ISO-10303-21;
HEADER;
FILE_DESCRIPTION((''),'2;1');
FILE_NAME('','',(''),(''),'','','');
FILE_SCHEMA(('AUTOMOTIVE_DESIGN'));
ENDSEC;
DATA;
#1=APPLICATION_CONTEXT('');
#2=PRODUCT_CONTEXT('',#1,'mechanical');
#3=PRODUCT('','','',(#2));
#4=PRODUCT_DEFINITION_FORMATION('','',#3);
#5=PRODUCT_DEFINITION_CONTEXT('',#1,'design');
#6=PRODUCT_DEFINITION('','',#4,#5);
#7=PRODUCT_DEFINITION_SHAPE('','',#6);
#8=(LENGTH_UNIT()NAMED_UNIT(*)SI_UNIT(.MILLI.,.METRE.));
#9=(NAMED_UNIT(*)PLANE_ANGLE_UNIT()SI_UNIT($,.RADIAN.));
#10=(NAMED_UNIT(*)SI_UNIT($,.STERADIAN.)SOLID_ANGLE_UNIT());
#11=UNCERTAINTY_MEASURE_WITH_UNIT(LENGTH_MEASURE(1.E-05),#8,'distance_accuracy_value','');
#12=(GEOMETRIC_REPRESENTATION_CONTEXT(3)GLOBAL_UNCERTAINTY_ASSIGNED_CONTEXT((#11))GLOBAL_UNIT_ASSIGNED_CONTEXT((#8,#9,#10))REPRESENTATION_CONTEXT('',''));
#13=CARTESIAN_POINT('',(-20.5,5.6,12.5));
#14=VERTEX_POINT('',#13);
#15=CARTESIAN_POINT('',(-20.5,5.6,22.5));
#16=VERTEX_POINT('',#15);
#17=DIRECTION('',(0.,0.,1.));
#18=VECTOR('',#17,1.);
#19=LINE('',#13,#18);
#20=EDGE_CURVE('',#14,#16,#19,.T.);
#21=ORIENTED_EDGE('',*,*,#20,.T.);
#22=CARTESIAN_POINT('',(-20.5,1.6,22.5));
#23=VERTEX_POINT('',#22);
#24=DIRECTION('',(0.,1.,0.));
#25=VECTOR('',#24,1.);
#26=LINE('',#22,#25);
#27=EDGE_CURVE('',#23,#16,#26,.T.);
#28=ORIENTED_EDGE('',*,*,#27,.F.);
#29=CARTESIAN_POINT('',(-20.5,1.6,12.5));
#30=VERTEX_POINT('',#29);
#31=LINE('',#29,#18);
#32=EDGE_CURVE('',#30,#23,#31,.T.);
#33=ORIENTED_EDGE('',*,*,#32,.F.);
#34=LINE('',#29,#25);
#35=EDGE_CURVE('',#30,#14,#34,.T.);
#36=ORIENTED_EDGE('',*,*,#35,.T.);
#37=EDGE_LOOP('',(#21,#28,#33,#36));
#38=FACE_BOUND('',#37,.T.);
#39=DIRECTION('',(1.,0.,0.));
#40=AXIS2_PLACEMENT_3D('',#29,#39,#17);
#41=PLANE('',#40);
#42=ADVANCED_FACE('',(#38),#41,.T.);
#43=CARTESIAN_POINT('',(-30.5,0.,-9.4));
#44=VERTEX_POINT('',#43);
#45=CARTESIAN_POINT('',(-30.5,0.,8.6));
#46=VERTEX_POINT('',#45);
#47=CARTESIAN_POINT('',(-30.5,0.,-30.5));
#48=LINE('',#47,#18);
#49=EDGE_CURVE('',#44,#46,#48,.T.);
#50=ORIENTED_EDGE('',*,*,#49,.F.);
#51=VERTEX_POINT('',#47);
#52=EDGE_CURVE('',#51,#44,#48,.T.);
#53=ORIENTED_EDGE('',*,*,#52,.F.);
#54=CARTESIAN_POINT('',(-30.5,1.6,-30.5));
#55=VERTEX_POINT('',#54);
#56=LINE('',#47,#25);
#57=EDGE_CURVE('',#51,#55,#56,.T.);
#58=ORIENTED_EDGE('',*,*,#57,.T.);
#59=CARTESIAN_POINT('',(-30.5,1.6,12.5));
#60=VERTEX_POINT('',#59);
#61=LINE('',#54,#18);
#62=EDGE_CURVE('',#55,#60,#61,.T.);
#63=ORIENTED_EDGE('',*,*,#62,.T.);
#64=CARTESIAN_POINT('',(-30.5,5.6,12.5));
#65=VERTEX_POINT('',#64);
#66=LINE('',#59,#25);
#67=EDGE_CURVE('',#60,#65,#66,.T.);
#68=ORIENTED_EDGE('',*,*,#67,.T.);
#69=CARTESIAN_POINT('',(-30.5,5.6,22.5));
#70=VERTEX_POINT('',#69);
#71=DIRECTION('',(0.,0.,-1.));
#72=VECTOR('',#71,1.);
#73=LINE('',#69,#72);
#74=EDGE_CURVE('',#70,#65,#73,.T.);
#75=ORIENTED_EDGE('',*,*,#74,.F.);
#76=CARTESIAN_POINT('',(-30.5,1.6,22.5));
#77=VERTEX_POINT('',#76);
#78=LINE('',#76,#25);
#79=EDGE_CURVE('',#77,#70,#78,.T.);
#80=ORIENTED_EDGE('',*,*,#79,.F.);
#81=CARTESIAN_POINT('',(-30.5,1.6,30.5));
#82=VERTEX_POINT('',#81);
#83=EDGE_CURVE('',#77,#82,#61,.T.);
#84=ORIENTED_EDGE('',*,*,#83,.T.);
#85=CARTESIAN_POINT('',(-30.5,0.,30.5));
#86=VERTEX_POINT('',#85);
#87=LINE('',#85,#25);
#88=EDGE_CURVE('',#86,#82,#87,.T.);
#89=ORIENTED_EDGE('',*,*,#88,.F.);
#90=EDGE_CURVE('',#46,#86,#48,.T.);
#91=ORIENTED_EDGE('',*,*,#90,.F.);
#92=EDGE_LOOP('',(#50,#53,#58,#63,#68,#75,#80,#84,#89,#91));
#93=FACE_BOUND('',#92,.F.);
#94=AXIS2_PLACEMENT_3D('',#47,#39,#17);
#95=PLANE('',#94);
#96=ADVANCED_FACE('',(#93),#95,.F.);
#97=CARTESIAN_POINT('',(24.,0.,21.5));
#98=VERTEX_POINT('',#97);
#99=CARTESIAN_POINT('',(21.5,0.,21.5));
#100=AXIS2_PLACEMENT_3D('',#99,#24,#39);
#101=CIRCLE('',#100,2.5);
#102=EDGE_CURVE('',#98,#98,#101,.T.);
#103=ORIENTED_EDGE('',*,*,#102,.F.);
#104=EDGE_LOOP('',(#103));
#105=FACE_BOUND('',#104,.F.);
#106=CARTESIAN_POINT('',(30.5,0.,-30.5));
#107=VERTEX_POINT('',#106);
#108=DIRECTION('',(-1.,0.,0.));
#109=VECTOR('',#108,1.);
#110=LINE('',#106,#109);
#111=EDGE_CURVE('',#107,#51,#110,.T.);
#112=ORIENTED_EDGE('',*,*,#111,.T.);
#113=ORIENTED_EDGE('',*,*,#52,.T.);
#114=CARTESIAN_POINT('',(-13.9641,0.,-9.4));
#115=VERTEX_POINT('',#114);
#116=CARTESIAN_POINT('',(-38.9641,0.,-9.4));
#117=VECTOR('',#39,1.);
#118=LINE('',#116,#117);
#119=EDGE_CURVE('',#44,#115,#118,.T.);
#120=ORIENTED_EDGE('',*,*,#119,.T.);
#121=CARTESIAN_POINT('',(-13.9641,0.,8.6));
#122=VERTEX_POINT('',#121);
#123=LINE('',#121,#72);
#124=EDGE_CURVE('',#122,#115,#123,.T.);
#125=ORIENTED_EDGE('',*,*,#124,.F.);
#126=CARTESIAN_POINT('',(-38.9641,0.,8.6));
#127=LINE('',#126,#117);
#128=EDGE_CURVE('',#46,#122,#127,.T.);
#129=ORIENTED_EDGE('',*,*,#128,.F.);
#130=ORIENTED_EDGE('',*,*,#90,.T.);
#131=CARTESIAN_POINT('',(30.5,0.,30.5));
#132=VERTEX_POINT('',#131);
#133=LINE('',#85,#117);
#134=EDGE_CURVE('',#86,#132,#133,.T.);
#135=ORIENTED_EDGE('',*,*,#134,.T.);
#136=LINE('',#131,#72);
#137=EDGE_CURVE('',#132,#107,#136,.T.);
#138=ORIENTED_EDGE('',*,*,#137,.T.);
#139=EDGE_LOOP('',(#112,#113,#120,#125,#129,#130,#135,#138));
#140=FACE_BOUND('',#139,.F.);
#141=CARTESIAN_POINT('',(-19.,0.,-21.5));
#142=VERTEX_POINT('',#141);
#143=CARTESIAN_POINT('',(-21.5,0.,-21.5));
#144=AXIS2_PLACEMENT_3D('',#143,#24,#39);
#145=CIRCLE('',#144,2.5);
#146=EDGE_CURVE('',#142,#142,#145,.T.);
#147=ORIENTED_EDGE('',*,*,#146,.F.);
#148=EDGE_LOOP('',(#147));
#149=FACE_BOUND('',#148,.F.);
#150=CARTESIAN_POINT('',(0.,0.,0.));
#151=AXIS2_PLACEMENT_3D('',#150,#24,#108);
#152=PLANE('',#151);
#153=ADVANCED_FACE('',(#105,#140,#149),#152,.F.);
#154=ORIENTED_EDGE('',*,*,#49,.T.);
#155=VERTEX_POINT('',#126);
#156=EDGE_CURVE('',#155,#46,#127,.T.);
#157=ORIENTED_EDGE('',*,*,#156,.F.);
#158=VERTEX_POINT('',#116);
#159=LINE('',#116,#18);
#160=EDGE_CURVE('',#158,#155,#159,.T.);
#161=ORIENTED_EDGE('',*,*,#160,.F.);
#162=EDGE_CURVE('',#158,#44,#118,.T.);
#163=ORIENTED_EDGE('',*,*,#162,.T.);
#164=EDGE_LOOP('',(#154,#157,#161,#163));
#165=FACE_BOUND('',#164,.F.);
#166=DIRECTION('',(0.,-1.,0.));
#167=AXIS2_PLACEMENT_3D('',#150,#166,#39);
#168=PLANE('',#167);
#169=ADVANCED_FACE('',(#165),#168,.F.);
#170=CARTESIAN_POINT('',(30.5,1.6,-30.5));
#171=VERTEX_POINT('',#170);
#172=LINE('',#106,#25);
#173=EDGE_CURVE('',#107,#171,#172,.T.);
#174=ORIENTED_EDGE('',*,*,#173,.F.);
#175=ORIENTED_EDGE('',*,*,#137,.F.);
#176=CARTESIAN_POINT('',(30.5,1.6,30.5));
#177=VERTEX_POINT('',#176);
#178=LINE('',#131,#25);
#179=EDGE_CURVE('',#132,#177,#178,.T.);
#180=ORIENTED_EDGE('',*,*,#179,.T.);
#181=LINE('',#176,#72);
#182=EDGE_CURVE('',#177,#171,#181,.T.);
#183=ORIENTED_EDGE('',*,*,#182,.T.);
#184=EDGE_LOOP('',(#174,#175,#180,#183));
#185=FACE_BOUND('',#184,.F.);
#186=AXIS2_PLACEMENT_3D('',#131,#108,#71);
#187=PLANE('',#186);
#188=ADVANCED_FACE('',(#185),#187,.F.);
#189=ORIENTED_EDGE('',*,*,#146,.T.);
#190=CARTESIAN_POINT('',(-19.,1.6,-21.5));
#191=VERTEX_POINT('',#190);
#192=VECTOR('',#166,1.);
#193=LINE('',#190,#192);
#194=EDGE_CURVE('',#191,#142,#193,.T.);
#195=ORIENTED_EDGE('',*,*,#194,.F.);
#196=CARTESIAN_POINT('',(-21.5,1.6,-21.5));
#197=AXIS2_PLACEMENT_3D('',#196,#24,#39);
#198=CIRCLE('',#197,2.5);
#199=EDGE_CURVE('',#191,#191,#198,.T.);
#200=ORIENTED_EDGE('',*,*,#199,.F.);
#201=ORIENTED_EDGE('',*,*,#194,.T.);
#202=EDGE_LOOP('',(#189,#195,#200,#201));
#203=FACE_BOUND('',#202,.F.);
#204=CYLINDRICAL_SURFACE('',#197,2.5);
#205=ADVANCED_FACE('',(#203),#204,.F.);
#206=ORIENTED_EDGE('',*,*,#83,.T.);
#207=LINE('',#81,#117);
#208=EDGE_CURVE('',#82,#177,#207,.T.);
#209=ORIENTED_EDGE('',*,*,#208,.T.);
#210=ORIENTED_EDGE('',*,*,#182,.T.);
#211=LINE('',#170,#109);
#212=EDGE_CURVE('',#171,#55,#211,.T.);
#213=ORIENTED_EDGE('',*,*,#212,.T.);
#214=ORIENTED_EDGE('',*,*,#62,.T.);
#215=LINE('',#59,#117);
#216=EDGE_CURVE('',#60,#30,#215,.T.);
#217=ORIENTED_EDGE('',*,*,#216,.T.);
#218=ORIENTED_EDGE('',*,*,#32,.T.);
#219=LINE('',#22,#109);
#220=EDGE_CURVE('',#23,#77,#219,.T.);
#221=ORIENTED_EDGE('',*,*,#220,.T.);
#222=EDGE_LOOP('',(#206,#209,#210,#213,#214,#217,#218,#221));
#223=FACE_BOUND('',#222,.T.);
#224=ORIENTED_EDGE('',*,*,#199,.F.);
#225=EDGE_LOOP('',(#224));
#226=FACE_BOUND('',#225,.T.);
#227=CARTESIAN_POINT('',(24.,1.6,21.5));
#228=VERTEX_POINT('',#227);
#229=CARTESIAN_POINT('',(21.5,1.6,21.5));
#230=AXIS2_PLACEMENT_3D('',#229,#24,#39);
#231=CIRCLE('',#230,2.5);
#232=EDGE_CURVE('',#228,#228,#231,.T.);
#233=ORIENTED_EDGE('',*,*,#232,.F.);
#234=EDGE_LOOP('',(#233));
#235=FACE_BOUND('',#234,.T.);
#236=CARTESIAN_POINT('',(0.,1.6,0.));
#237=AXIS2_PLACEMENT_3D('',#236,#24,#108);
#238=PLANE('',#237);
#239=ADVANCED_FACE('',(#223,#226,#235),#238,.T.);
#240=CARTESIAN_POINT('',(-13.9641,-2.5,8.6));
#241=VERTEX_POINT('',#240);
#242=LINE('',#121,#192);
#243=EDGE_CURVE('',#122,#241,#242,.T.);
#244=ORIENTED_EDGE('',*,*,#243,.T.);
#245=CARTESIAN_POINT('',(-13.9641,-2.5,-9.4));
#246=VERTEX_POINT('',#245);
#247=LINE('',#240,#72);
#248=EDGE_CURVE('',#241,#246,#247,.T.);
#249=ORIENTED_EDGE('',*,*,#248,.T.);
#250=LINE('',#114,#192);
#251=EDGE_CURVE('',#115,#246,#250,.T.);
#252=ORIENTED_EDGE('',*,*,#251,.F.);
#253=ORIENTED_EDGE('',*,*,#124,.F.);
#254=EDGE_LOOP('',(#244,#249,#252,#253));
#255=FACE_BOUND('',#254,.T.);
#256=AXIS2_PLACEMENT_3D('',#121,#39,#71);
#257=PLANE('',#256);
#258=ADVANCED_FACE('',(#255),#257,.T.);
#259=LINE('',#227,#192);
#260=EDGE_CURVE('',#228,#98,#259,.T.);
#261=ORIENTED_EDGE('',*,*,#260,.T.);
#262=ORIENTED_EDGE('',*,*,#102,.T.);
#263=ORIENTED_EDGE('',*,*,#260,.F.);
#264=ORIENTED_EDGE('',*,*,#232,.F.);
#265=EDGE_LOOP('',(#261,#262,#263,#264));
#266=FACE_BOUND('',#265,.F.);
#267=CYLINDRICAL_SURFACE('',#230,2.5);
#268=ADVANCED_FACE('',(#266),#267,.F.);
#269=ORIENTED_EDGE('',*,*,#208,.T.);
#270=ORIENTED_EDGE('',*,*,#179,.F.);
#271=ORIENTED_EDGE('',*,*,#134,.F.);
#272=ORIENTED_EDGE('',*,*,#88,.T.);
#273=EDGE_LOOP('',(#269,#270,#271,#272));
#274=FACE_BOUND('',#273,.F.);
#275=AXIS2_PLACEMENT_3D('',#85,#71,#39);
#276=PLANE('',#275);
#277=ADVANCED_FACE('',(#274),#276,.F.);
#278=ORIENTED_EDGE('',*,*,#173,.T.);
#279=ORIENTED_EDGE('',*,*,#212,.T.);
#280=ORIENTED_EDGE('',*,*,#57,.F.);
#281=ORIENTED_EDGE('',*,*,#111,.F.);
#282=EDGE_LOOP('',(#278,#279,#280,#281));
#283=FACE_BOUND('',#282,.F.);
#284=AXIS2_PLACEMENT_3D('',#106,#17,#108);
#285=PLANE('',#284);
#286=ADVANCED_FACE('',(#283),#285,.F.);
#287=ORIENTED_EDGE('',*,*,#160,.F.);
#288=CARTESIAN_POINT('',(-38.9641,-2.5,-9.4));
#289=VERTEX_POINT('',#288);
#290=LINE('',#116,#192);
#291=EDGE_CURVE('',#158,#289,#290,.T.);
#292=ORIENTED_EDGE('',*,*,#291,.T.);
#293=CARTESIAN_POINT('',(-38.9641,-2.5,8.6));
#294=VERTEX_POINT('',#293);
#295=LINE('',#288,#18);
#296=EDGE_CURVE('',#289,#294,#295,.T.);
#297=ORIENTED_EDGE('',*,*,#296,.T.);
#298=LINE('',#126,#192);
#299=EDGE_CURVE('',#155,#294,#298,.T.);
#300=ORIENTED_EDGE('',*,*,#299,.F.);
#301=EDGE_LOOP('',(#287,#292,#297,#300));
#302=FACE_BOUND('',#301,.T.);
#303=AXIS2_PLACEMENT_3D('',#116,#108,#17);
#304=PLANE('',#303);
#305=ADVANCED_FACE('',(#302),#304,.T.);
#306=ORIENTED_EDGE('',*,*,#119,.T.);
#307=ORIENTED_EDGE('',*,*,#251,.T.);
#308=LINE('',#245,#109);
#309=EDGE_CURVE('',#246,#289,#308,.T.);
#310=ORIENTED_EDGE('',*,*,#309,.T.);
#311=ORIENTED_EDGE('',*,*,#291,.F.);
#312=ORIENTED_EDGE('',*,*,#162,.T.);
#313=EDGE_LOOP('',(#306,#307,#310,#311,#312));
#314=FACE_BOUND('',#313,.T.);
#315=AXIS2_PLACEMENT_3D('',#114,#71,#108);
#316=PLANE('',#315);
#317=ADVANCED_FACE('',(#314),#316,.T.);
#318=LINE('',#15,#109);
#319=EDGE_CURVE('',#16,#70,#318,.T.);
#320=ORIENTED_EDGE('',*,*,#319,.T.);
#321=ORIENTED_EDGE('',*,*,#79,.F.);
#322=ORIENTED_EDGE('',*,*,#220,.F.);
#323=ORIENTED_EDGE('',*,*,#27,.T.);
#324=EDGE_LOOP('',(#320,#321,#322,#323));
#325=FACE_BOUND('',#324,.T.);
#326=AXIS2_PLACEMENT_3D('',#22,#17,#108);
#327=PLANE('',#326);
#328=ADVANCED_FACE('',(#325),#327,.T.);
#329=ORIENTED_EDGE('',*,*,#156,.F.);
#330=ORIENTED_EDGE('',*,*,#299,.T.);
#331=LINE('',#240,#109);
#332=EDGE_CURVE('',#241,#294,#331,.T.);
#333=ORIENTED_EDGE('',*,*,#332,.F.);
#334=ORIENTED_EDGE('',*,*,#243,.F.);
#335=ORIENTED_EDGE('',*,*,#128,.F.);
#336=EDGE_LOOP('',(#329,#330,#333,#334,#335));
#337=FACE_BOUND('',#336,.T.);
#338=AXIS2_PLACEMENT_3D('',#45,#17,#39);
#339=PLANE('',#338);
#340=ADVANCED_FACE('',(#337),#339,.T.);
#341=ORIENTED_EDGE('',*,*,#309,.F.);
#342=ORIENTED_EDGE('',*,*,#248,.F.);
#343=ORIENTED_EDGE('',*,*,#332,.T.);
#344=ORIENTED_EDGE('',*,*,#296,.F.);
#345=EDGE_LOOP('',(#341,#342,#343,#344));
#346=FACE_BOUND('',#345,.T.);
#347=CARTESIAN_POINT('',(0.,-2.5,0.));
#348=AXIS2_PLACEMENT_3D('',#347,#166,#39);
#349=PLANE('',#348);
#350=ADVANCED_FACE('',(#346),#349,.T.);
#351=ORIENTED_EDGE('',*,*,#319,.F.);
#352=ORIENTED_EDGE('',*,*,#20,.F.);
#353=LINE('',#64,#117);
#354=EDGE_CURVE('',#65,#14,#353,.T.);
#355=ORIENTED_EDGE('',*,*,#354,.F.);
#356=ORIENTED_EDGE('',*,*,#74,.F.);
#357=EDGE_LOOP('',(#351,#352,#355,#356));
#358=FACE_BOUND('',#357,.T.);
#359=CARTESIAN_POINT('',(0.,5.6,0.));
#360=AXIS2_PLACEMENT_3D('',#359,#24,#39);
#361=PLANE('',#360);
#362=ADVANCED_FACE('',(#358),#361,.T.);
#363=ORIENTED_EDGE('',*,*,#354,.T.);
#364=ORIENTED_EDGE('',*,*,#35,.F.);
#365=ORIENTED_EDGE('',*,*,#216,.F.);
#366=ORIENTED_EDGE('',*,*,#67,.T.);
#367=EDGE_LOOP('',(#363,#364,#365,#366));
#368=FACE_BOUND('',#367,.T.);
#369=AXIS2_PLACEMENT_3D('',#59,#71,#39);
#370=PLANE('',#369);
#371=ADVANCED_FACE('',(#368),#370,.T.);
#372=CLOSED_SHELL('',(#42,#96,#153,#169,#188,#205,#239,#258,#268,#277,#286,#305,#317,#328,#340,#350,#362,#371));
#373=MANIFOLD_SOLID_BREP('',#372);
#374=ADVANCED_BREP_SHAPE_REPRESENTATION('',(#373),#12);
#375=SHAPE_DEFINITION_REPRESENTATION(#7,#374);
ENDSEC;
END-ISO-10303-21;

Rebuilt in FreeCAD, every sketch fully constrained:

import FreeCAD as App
import Part
import Sketcher

V = App.Vector


def add_polygon(sketch, points):
    """Adds a closed chain of lines whose ends are joined by coincident constraints."""
    first, n = sketch.GeometryCount, len(points)
    for a, b in zip(points, points[1:] + points[:1]):
        sketch.addGeometry(Part.LineSegment(App.Vector(*a, 0), App.Vector(*b, 0)), False)
    for i in range(n):
        sketch.addConstraint(Sketcher.Constraint("Coincident", first + i, 2, first + (i + 1) % n, 1))

doc = App.newDocument("Part")
body = doc.addObject("PartDesign::Body", "Body")

sketch1 = body.newObject("Sketcher::SketchObject", "Sketch")
sketch1.AttachmentSupport = (doc.getObject("XZ_Plane"), [""])
sketch1.MapMode = "FlatFace"
add_polygon(sketch1, [(-30, -30), (-30, 30), (30, 30), (30, -30)])
sketch1.addConstraint([
    Sketcher.Constraint("Vertical", 0),
    Sketcher.Constraint("Horizontal", 1),
    Sketcher.Constraint("Vertical", 2),
    Sketcher.Constraint("Horizontal", 3),
    Sketcher.Constraint("Symmetric", 0, 2, 2, 2, -1, 1),
    Sketcher.Constraint("Equal", 3, 0),
    Sketcher.Constraint("DistanceX", 1, 1, 1, 2, 61.0),
])
pad1 = body.newObject("PartDesign::Pad", "Pad")
pad1.Profile = sketch1
pad1.Length = 1.6
pad1.Reversed = True

sketch2 = body.newObject("Sketcher::SketchObject", "Sketch001")
sketch2.AttachmentSupport = (doc.getObject("XZ_Plane"), [""])
sketch2.MapMode = "FlatFace"
sketch2.AttachmentOffset = App.Placement(V(0, 0, -1.6), App.Rotation())
sketch2.addGeometry([
    Part.Circle(V(21.5, 21.5, 0), V(0, 0, 1), 2.5),
    Part.Circle(V(-21.5, -21.5, 0), V(0, 0, 1), 2.5),
], False)
sketch2.addConstraint([
    Sketcher.Constraint("Equal", 0, 1),
    Sketcher.Constraint("Symmetric", 0, 3, 1, 3, -1, 1),
    Sketcher.Constraint("Diameter", 0, 5.0),
    Sketcher.Constraint("DistanceX", 1, 3, 0, 3, 43.0),
    Sketcher.Constraint("DistanceY", 1, 3, 0, 3, 43.0),
])
pocket1 = body.newObject("PartDesign::Pocket", "Pocket")
pocket1.Profile = sketch2
pocket1.Length = 1.6
pocket1.Reversed = True

sketch3 = body.newObject("Sketcher::SketchObject", "Sketch002")
sketch3.AttachmentSupport = (doc.getObject("XZ_Plane"), [""])
sketch3.MapMode = "FlatFace"
add_polygon(sketch3, [(-14, -9), (-14, 9), (-39, 9), (-39, -9)])
sketch3.addConstraint([
    Sketcher.Constraint("Vertical", 0),
    Sketcher.Constraint("Horizontal", 1),
    Sketcher.Constraint("Vertical", 2),
    Sketcher.Constraint("Horizontal", 3),
    Sketcher.Constraint("DistanceX", 1, 2, 1, 1, 25.0),
    Sketcher.Constraint("DistanceY", 0, 1, 0, 2, 18.0),
    Sketcher.Constraint("DistanceY", -1, 1, 0, 2, 8.6),
    Sketcher.Constraint("DistanceX", 0, 2, -1, 1, 13.964),
])
pad2 = body.newObject("PartDesign::Pad", "Pad001")
pad2.Profile = sketch3
pad2.Length = 2.5

sketch4 = body.newObject("Sketcher::SketchObject", "Sketch003")
sketch4.AttachmentSupport = (doc.getObject("XZ_Plane"), [""])
sketch4.MapMode = "FlatFace"
sketch4.AttachmentOffset = App.Placement(V(0, 0, -1.6), App.Rotation())
add_polygon(sketch4, [(-20, 12), (-30, 12), (-30, 22), (-20, 22)])
sketch4.addConstraint([
    Sketcher.Constraint("Horizontal", 0),
    Sketcher.Constraint("Vertical", 1),
    Sketcher.Constraint("Horizontal", 2),
    Sketcher.Constraint("Vertical", 3),
    Sketcher.Constraint("Equal", 2, 1),
    Sketcher.Constraint("DistanceX", 0, 2, 0, 1, 10.0),
    Sketcher.Constraint("DistanceX", 0, 2, -1, 1, 30.5),
    Sketcher.Constraint("DistanceY", -1, 1, 0, 2, 12.5),
])
pad3 = body.newObject("PartDesign::Pad", "Pad002")
pad3.Profile = sketch4
pad3.Length = 4
pad3.Reversed = True

doc.recompute()
